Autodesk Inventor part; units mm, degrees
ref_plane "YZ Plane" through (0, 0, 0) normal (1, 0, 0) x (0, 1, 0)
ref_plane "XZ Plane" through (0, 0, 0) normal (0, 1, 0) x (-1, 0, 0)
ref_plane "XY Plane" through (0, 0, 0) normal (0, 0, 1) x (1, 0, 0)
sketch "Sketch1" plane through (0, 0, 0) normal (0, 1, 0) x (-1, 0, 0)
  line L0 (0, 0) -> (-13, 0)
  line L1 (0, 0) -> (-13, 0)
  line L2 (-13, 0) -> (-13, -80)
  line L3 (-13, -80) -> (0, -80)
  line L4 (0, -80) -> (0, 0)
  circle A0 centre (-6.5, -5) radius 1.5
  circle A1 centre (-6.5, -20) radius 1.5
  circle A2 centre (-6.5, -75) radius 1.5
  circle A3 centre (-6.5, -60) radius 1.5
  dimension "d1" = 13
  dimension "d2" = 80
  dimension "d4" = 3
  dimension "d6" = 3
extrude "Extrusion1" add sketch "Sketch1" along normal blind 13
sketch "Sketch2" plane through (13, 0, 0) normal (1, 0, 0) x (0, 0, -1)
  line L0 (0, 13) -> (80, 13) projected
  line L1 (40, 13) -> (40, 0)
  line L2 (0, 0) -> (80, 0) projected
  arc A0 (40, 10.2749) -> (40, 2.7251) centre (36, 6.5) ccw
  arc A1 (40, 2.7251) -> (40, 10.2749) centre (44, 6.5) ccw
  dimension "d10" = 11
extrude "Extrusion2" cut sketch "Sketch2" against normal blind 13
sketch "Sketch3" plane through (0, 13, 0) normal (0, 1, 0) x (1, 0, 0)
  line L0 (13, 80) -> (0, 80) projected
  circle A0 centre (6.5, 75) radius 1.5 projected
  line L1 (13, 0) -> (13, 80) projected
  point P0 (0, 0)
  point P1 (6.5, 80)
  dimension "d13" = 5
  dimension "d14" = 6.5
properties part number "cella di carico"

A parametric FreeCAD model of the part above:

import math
import FreeCAD as App
import Part
import Sketcher

V = App.Vector

doc = App.newDocument("Part")
body = doc.addObject("PartDesign::Body", "Body")

# Sketch on XZ plane
sketch1 = body.newObject("Sketcher::SketchObject", "Sketch")
sketch1.AttachmentSupport = (doc.getObject("XZ_Plane"), [""])
sketch1.MapMode = "FlatFace"
sketch1.addGeometry([
    Part.LineSegment(V(0, -80, 0), V(0, 0, 0)),  # 0
    Part.LineSegment(V(0, 0, 0), V(13, 0, 0)),  # 1
    Part.LineSegment(V(13, 0, 0), V(13, -80, 0)),  # 2
    Part.LineSegment(V(13, -80, 0), V(0, -80, 0)),  # 3
    Part.Circle(V(6.5, -75, 0), V(0, 0, 1), 1.5),  # 4
    Part.Circle(V(6.5, -60, 0), V(0, 0, 1), 1.5),  # 5
    Part.Circle(V(6.5, -20, 0), V(0, 0, 1), 1.5),  # 6
    Part.Circle(V(6.5, -5, 0), V(0, 0, 1), 1.5),  # 7
], False)
sketch1.addConstraint([
    Sketcher.Constraint("Coincident", 0, 2, 1, 1),
    Sketcher.Constraint("Coincident", 1, 2, 2, 1),
    Sketcher.Constraint("Coincident", 2, 2, 3, 1),
    Sketcher.Constraint("Coincident", 3, 2, 0, 1),
    Sketcher.Constraint("Vertical", 0),
    Sketcher.Constraint("Horizontal", 1),
    Sketcher.Constraint("Vertical", 2),
    Sketcher.Constraint("Horizontal", 3),
    Sketcher.Constraint("Coincident", 0, 2, -1, 1),
    Sketcher.Constraint("Equal", 4, 5),
    Sketcher.Constraint("Equal", 5, 6),
    Sketcher.Constraint("Equal", 6, 7),
    Sketcher.Constraint("Vertical", 4, 3, 5, 3),
    Sketcher.Constraint("Vertical", 5, 3, 6, 3),
    Sketcher.Constraint("Vertical", 6, 3, 7, 3),
    Sketcher.Constraint("Diameter", 4, 3.0),
    Sketcher.Constraint("DistanceX", 1, 1, 1, 2, 13.0),
    Sketcher.Constraint("DistanceY", 0, 1, 0, 2, 80.0),
    Sketcher.Constraint("DistanceY", 4, 3, -1, 1, 75.0),
    Sketcher.Constraint("DistanceY", 5, 3, -1, 1, 60.0),
    Sketcher.Constraint("DistanceY", 6, 3, -1, 1, 20.0),
    Sketcher.Constraint("DistanceY", 7, 3, -1, 1, 5.0),
    Sketcher.Constraint("DistanceX", -1, 1, 4, 3, 6.5),
])
pad1 = body.newObject("PartDesign::Pad", "Pad")
pad1.Profile = sketch1
pad1.Length = 13
pad1.Reversed = True

# Sketch on YZ plane
sketch2 = body.newObject("Sketcher::SketchObject", "Sketch001")
sketch2.AttachmentSupport = (doc.getObject("YZ_Plane"), [""])
sketch2.MapMode = "FlatFace"
sketch2.AttachmentOffset = App.Placement(V(0, 0, 13), App.Rotation())
sketch2.addGeometry([
    Part.ArcOfCircle(Part.Circle(V(6, -44, 0), V(0, 0, 1), 5), math.radians(133), math.radians(407)),
    Part.ArcOfCircle(Part.Circle(V(6, -36, 0), V(0, 0, 1), 5), math.radians(-47), math.radians(227)),
], False)
sketch2.addConstraint([
    Sketcher.Constraint("Coincident", 0, 1, 1, 2),
    Sketcher.Constraint("Coincident", 1, 1, 0, 2),
    Sketcher.Constraint("Equal", 0, 1),
    Sketcher.Constraint("Horizontal", 0, 1, 1, 1),
    Sketcher.Constraint("Radius", 0, 5.5),
    Sketcher.Constraint("DistanceY", 0, 3, -1, 1, 44.0),
    Sketcher.Constraint("DistanceY", 1, 3, -1, 1, 36.0),
    Sketcher.Constraint("DistanceX", -1, 1, 0, 3, 6.5),
])
pocket1 = body.newObject("PartDesign::Pocket", "Pocket")
pocket1.Profile = sketch2
pocket1.Length = 13

doc.recompute()
